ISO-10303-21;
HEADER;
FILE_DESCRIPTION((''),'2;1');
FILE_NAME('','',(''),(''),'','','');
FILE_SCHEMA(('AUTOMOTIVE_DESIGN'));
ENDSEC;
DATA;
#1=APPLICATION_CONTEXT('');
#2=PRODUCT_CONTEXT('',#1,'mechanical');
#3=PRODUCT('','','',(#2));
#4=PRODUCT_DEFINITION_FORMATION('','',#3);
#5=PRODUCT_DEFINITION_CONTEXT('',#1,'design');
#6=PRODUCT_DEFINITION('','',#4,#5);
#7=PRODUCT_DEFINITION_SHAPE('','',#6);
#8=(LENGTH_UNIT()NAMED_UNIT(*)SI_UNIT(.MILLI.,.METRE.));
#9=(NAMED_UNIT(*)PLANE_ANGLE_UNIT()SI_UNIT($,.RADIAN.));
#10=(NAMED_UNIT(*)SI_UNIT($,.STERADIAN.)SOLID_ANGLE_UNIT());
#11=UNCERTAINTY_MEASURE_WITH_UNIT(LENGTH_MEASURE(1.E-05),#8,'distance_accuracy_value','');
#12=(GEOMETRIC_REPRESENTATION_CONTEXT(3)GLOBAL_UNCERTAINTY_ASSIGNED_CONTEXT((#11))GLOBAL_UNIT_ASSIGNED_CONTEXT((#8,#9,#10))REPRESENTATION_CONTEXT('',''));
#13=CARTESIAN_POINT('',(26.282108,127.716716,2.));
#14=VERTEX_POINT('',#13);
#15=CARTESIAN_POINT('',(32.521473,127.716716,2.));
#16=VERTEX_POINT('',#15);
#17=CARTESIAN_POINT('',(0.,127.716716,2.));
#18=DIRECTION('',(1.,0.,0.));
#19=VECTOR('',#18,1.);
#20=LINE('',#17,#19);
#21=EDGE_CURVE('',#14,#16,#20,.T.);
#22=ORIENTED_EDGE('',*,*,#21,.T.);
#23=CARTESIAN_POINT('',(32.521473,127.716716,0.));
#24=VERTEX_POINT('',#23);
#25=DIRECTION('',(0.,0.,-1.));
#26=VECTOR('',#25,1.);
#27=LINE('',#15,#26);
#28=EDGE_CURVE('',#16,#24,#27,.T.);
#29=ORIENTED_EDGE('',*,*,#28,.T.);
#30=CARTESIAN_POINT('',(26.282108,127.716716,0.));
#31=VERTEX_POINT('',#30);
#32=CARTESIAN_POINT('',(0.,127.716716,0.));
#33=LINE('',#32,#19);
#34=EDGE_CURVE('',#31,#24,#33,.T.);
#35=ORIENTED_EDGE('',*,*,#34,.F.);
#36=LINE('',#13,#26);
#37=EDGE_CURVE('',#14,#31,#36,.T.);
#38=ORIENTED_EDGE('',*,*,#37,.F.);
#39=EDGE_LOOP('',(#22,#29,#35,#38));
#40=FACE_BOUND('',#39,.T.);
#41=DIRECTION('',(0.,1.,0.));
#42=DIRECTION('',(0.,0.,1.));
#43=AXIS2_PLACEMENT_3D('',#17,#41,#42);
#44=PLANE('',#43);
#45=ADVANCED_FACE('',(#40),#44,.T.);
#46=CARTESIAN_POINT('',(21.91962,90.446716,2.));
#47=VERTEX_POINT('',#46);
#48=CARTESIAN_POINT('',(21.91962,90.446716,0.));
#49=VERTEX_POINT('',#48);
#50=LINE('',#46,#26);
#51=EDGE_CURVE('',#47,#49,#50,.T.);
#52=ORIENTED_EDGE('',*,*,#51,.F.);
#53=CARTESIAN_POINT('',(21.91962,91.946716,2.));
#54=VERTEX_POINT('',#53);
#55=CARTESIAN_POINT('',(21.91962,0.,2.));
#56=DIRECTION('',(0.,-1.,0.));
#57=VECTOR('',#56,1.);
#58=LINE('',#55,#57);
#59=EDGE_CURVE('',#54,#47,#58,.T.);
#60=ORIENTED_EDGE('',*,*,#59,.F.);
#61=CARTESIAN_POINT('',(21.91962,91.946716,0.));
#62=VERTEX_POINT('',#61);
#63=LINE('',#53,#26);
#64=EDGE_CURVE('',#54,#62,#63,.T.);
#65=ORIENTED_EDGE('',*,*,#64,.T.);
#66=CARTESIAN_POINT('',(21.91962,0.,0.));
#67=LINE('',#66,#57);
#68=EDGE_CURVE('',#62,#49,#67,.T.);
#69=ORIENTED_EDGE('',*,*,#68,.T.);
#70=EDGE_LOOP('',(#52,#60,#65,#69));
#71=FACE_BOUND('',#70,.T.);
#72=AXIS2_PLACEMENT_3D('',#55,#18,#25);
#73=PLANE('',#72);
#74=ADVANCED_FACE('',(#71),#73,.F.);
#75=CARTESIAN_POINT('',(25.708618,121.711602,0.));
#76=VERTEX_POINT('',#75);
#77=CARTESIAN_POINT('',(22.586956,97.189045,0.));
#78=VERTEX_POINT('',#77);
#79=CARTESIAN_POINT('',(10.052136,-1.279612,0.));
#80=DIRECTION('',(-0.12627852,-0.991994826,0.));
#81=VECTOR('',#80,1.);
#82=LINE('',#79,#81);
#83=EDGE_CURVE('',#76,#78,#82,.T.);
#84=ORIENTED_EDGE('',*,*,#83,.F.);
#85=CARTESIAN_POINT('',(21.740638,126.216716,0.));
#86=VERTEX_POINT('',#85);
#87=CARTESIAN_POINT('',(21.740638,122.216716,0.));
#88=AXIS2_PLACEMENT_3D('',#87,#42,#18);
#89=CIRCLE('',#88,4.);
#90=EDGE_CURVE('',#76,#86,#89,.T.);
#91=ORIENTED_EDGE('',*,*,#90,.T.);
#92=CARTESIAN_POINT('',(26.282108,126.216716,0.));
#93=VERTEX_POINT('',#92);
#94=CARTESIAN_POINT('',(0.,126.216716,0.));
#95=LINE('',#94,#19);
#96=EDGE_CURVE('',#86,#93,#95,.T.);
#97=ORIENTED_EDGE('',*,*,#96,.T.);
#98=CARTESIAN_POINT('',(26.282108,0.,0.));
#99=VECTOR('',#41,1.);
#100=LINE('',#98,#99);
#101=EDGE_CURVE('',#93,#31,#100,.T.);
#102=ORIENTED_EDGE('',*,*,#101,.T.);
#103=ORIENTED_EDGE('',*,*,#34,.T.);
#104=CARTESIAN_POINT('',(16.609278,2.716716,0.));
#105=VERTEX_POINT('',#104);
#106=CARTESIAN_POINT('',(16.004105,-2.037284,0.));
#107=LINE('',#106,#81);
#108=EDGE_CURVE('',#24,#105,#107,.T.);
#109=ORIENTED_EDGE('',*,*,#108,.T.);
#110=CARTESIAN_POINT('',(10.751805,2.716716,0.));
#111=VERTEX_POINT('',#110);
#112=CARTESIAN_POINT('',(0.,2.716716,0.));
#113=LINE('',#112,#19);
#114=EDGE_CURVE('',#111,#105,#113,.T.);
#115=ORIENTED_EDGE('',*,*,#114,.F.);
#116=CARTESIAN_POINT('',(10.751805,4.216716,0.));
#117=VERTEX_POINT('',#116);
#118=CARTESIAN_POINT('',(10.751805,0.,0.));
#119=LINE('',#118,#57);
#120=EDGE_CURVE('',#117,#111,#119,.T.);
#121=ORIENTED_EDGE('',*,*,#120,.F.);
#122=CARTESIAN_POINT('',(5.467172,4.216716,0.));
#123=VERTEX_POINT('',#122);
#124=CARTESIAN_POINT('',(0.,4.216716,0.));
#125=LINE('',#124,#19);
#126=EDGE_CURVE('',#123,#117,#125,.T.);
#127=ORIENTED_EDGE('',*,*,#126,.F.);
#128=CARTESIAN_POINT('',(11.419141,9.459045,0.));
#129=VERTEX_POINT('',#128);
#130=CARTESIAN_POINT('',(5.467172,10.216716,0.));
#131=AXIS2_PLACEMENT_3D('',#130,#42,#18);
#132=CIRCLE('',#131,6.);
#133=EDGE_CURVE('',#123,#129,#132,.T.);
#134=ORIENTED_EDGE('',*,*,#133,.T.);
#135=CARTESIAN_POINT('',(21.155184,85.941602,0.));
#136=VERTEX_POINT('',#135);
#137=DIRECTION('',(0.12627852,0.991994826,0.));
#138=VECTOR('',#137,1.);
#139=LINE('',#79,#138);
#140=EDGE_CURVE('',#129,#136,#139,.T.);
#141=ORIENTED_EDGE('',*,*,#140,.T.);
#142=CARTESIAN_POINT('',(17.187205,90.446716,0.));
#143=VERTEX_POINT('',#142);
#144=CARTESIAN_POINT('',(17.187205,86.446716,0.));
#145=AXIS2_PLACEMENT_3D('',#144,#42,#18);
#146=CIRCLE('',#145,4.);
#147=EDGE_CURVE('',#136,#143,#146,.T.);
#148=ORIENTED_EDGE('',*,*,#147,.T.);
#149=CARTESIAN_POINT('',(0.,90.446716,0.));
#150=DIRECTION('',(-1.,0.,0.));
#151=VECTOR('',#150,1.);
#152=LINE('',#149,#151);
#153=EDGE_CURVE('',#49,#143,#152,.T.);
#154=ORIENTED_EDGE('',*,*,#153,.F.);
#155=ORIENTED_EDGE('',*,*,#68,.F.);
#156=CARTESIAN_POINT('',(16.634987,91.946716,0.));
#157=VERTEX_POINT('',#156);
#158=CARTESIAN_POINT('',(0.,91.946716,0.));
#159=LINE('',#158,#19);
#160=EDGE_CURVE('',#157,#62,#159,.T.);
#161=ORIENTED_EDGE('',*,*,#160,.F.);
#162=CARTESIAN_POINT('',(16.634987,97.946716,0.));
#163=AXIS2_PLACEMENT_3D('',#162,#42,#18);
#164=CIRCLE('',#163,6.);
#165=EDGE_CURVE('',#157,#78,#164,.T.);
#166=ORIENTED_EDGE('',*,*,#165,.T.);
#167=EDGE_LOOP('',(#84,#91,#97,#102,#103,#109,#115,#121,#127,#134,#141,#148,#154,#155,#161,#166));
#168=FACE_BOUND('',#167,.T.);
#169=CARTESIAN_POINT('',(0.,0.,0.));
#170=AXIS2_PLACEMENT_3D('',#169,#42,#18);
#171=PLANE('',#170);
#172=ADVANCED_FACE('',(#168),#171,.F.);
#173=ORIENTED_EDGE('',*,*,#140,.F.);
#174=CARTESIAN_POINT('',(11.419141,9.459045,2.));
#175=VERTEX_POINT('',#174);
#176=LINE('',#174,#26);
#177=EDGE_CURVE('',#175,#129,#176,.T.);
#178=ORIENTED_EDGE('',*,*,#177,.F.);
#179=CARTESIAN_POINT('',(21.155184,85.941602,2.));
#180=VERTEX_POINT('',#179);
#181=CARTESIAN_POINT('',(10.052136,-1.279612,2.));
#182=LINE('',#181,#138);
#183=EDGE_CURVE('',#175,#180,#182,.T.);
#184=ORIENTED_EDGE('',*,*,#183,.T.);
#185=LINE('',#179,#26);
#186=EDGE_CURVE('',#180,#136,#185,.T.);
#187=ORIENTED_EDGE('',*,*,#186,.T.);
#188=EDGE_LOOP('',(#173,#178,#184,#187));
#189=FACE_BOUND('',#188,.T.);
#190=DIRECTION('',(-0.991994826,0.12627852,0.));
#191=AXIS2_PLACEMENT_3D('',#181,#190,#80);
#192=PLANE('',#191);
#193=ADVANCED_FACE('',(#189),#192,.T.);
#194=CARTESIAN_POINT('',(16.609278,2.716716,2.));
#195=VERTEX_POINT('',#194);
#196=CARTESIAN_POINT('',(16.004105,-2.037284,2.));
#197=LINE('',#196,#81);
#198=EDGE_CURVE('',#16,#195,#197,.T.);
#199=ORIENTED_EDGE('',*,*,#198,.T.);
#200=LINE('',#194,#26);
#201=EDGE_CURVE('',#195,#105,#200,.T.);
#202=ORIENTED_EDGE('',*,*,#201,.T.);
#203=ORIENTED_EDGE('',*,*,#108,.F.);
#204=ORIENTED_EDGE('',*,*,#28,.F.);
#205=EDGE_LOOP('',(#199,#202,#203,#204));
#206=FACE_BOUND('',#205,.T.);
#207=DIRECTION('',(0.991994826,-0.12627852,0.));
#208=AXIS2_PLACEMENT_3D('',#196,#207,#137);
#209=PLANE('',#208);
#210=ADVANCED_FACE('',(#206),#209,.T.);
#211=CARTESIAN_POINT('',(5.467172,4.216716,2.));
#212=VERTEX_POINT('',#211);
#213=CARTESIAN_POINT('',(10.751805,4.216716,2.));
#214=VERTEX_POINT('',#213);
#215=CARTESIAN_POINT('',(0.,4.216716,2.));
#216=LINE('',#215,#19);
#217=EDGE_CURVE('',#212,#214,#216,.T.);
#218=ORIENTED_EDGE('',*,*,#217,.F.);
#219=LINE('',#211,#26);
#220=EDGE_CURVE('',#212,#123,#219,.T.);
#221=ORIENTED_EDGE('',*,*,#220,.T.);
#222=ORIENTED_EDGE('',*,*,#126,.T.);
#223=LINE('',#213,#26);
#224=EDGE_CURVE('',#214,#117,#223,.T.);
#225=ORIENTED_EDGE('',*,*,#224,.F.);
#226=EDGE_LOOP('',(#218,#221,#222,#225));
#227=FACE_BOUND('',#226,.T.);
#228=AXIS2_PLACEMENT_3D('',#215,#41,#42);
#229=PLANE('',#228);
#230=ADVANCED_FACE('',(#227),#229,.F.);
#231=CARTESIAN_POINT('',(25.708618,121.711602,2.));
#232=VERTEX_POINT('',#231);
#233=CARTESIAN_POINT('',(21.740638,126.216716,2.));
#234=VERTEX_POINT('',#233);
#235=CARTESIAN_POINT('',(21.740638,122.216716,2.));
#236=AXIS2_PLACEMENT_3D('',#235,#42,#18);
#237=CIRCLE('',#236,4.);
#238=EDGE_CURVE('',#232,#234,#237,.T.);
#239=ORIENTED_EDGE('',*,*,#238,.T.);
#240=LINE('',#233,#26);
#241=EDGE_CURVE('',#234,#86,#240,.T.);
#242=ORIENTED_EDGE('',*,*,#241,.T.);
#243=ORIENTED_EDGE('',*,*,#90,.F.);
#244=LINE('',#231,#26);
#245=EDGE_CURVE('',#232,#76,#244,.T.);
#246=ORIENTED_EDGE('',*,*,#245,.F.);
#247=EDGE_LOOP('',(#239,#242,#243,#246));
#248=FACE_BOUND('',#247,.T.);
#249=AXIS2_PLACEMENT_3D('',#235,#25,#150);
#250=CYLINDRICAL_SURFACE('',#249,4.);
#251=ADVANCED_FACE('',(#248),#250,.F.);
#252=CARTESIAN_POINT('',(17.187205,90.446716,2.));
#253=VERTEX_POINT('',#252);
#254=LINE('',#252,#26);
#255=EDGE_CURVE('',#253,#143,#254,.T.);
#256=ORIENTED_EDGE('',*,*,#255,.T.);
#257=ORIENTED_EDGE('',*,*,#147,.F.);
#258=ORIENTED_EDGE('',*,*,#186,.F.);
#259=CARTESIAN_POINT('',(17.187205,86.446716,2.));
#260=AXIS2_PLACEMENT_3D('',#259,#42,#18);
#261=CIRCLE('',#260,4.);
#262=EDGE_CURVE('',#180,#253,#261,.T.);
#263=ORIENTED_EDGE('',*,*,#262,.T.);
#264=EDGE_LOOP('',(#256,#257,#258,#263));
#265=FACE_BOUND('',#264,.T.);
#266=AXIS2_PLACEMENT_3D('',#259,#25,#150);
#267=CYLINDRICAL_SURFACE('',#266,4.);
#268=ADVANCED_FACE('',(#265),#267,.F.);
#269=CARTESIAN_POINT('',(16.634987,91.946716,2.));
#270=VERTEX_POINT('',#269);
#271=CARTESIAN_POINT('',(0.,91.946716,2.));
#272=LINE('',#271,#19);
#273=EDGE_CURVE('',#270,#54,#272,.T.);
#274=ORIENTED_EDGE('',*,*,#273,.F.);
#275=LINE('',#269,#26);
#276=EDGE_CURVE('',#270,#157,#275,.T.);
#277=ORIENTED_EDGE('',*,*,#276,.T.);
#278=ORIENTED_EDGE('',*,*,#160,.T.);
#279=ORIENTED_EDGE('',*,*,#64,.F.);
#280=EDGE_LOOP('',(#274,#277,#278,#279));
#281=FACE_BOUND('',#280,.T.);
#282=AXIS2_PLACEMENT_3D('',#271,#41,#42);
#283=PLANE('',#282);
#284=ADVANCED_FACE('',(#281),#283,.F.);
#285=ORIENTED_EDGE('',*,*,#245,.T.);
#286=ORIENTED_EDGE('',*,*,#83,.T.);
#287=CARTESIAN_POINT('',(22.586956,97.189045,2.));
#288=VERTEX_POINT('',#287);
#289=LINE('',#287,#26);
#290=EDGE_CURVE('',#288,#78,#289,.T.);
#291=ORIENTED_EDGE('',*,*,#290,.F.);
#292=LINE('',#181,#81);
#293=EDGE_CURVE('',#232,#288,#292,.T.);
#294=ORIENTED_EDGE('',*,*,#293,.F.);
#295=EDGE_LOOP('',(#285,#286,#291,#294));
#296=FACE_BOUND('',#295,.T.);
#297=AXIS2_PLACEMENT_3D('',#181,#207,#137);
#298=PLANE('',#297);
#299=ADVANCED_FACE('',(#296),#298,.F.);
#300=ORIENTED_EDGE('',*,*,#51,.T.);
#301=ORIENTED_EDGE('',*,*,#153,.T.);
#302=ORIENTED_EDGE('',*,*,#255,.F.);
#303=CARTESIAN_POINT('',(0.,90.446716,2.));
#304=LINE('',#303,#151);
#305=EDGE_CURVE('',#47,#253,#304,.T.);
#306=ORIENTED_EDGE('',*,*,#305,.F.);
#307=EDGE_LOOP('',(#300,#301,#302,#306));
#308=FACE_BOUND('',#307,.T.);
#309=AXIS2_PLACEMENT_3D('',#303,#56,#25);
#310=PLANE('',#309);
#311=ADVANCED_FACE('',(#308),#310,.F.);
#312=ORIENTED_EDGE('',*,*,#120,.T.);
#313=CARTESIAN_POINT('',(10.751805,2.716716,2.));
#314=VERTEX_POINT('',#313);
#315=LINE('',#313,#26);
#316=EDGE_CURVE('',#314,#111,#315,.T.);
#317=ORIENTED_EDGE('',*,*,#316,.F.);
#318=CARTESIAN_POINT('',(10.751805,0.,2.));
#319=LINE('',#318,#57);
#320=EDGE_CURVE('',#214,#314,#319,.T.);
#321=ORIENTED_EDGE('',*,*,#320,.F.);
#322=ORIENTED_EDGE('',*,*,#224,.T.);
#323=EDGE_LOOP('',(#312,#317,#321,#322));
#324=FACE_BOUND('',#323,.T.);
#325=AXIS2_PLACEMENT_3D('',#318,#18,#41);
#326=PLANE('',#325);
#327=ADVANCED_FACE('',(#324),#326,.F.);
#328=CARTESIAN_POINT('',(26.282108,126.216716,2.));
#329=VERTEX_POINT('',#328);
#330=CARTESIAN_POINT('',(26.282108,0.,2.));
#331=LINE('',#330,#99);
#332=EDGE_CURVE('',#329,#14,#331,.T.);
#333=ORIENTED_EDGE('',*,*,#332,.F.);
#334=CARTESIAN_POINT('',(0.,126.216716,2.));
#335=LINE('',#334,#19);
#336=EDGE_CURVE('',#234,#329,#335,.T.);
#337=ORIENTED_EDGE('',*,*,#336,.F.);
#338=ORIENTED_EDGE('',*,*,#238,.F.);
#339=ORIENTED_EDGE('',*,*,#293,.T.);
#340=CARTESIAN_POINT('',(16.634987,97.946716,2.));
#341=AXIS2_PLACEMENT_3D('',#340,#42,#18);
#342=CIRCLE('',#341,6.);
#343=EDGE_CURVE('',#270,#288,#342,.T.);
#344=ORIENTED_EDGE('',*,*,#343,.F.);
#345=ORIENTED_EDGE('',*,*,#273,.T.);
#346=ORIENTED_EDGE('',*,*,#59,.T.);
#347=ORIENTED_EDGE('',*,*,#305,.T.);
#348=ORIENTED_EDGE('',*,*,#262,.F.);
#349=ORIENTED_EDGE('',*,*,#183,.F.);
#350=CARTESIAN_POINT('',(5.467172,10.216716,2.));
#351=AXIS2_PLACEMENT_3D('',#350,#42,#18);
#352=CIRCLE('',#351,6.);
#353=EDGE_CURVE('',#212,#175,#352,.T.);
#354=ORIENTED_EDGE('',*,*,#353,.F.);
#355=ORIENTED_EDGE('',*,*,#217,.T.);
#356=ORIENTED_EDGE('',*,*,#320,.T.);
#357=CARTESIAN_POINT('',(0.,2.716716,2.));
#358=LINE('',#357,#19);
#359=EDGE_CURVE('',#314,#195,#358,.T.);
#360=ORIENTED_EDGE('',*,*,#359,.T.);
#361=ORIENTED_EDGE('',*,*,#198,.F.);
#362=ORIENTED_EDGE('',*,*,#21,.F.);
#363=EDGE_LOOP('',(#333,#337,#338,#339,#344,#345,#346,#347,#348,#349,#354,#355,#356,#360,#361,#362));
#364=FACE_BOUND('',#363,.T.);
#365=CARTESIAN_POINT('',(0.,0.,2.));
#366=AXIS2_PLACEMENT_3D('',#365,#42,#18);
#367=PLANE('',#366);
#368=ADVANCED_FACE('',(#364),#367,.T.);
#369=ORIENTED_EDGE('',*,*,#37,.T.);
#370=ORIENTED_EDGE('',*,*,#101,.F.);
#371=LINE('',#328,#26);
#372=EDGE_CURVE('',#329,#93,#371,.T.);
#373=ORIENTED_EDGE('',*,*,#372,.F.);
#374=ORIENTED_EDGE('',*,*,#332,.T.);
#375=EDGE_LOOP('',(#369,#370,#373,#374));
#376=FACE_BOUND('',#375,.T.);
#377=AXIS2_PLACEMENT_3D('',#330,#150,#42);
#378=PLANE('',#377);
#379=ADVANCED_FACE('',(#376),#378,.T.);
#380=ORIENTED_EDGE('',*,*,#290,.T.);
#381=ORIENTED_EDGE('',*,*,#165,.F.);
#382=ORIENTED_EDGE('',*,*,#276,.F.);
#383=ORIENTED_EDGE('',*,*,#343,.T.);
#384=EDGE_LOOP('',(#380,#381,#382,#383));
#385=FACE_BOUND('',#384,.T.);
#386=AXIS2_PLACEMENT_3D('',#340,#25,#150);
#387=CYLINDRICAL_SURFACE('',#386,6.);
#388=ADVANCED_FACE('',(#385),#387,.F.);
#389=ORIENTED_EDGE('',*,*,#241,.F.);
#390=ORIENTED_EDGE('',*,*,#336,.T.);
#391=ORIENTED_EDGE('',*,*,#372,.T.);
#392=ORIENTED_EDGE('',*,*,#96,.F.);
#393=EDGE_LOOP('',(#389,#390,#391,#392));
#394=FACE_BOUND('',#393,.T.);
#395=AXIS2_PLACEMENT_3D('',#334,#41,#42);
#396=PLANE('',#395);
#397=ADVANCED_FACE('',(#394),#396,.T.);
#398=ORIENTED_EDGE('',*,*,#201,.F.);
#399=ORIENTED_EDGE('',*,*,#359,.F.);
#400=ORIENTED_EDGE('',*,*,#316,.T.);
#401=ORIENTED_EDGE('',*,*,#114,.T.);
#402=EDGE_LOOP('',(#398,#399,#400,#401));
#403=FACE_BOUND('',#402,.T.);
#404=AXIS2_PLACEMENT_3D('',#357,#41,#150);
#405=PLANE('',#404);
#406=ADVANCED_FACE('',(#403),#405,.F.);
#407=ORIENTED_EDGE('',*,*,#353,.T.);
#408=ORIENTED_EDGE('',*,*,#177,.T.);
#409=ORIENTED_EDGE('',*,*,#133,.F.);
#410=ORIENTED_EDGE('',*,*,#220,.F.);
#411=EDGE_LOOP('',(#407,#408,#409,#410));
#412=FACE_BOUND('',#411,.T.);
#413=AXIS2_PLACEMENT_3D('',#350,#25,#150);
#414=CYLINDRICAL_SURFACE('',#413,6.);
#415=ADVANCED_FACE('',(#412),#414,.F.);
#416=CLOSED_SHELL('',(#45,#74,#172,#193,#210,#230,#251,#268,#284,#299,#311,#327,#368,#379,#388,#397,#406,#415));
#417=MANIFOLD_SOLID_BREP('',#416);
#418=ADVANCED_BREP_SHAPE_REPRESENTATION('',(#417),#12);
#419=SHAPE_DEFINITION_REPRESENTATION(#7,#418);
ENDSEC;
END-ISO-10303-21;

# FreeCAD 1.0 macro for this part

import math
import FreeCAD as App
import Part
import Sketcher

V = App.Vector

doc = App.newDocument("Part")
body = doc.addObject("PartDesign::Body", "Body")

# Sketch on XY plane
sketch1 = body.newObject("Sketcher::SketchObject", "Sketch")
sketch1.AttachmentSupport = (doc.getObject("XY_Plane"), [""])
sketch1.MapMode = "FlatFace"
sketch1.addGeometry([
    Part.LineSegment(V(32.5, 127.7, 0), V(26.3, 127.7, 0)),  # 0
    Part.LineSegment(V(26.3, 127.7, 0), V(26.3, 126.2, 0)),  # 1
    Part.LineSegment(V(26.3, 126.2, 0), V(21.7, 126.2, 0)),  # 2
    Part.ArcOfCircle(Part.Circle(V(21.7, 122.2, 0), V(0, 0, 1), 4), math.radians(-7), math.radians(90)),  # 3
    Part.LineSegment(V(25.7, 121.7, 0), V(22.6, 97.2, 0)),  # 4
    Part.ArcOfCircle(Part.Circle(V(16.6, 97.9, 0), V(0, 0, 1), 6), math.radians(-90), math.radians(-7)),  # 5
    Part.LineSegment(V(16.6, 91.9, 0), V(21.9, 91.9, 0)),  # 6
    Part.LineSegment(V(21.9, 91.9, 0), V(21.9, 90.4, 0)),  # 7
    Part.LineSegment(V(21.9, 90.4, 0), V(17.2, 90.4, 0)),  # 8
    Part.ArcOfCircle(Part.Circle(V(17.2, 86.4, 0), V(0, 0, 1), 4), math.radians(-7), math.radians(90)),  # 9
    Part.LineSegment(V(21.2, 85.9, 0), V(11.4, 9.5, 0)),  # 10
    Part.ArcOfCircle(Part.Circle(V(5.5, 10.2, 0), V(0, 0, 1), 6), math.radians(-90), math.radians(-7)),  # 11
    Part.LineSegment(V(5.5, 4.2, 0), V(10.8, 4.2, 0)),  # 12
    Part.LineSegment(V(10.8, 4.2, 0), V(10.8, 2.7, 0)),  # 13
    Part.LineSegment(V(10.8, 2.7, 0), V(16.6, 2.7, 0)),  # 14
    Part.LineSegment(V(16.6, 2.7, 0), V(32.5, 127.7, 0)),  # 15
], False)
sketch1.addConstraint([
    Sketcher.Constraint("Coincident", 0, 2, 1, 1),
    Sketcher.Constraint("Coincident", 1, 2, 2, 1),
    Sketcher.Constraint("Tangent", 2, 2, 3, 2),
    Sketcher.Constraint("Tangent", 3, 1, 4, 1),
    Sketcher.Constraint("Tangent", 4, 2, 5, 2),
    Sketcher.Constraint("Tangent", 5, 1, 6, 1),
    Sketcher.Constraint("Coincident", 6, 2, 7, 1),
    Sketcher.Constraint("Coincident", 7, 2, 8, 1),
    Sketcher.Constraint("Tangent", 8, 2, 9, 2),
    Sketcher.Constraint("Tangent", 9, 1, 10, 1),
    Sketcher.Constraint("Tangent", 10, 2, 11, 2),
    Sketcher.Constraint("Tangent", 11, 1, 12, 1),
    Sketcher.Constraint("Coincident", 12, 2, 13, 1),
    Sketcher.Constraint("Coincident", 13, 2, 14, 1),
    Sketcher.Constraint("Coincident", 14, 2, 15, 1),
    Sketcher.Constraint("Coincident", 15, 2, 0, 1),
    Sketcher.Constraint("Horizontal", 0),
    Sketcher.Constraint("Vertical", 1),
    Sketcher.Constraint("Horizontal", 2),
    Sketcher.Constraint("Horizontal", 6),
    Sketcher.Constraint("Vertical", 7),
    Sketcher.Constraint("Horizontal", 8),
    Sketcher.Constraint("Horizontal", 12),
    Sketcher.Constraint("Vertical", 13),
    Sketcher.Constraint("Horizontal", 14),
    Sketcher.Constraint("Equal", 3, 9),
    Sketcher.Constraint("Equal", 5, 11),
    Sketcher.Constraint("Parallel", 4, 10),
    Sketcher.Constraint("Parallel", 10, 15),
    Sketcher.Constraint("Equal", 6, 12),
    Sketcher.Constraint("Equal", 1, 7),
    Sketcher.Constraint("Equal", 7, 13),
    Sketcher.Constraint("Radius", 3, 4.0),
    Sketcher.Constraint("Radius", 5, 6.0),
    Sketcher.Constraint("DistanceY", 1, 2, 1, 1, 1.5),
    Sketcher.Constraint("DistanceY", 11, 3, 3, 3, 112.0),
    Sketcher.Constraint("DistanceY", 5, 3, 3, 3, 24.27),
    Sketcher.Constraint("DistanceX", 2, 2, 2, 1, 4.541469),
    Sketcher.Constraint("DistanceX", 12, 2, 9, 3, 6.435399),
    Sketcher.Constraint("Distance", 4, 24.720449),
    Sketcher.Constraint("DistanceX", 0, 2, 0, 1, 6.239365),
    Sketcher.Constraint("DistanceX", 8, 2, 8, 1, 4.732416),
    Sketcher.Constraint("DistanceX", -1, 1, 3, 3, 21.740638),
    Sketcher.Constraint("DistanceY", -1, 1, 3, 3, 122.216716),
])
pad1 = body.newObject("PartDesign::Pad", "Pad")
pad1.Profile = sketch1
pad1.Length = 2

doc.recompute()
